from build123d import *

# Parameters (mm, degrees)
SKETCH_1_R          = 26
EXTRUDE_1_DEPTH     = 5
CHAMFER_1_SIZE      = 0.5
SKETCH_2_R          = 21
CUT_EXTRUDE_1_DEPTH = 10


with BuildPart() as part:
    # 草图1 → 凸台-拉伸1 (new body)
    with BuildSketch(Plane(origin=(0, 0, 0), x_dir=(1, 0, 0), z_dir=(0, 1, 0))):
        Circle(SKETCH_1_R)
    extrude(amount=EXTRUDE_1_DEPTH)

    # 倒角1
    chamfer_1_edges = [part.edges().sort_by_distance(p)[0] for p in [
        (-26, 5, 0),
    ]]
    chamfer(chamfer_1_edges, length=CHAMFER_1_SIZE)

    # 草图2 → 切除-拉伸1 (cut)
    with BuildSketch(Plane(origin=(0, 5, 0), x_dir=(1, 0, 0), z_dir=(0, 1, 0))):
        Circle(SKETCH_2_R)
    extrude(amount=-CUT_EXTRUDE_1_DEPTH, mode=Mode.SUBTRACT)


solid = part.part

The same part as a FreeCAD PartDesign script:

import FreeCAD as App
import Part
import Sketcher

V = App.Vector
Q = App.Units.Quantity


def edges_at(feature, points):
    """Names of the edges that pass closest to the given points."""
    edges = feature.Shape.Edges
    near = lambda p: min(range(len(edges)), key=lambda i: edges[i].distToShape(Part.Vertex(*p))[0])
    return sorted({f"Edge{near(p) + 1}" for p in points})

doc = App.newDocument("Part")
body = doc.addObject("PartDesign::Body", "Body")

sketch1 = body.newObject("Sketcher::SketchObject", "Sketch")
sketch1.AttachmentSupport = (doc.getObject("XZ_Plane"), [""])
sketch1.MapMode = "FlatFace"
sketch1.addGeometry(Part.Circle(V(0, 0, 0), V(0, 0, 1), 26), False)
sketch1.addConstraint([
    Sketcher.Constraint("Coincident", 0, 3, -1, 1),
    Sketcher.Constraint("Diameter", 0, Q("52 mm")),
])
pad1 = body.newObject("PartDesign::Pad", "Pad")
pad1.Profile = sketch1
pad1.Length = 5
pad1.Reversed = True
doc.recompute()

chamfer = body.newObject("PartDesign::Chamfer", "Chamfer")
chamfer.Base = (pad1, edges_at(pad1, [(-26, 5, 0)]))
chamfer.Size = 0.5

sketch2 = body.newObject("Sketcher::SketchObject", "Sketch001")
sketch2.AttachmentSupport = (doc.getObject("XZ_Plane"), [""])
sketch2.MapMode = "FlatFace"
sketch2.AttachmentOffset = App.Placement(V(0, 0, -5), App.Rotation())
sketch2.addGeometry(Part.Circle(V(0, 0, 0), V(0, 0, 1), 21), False)
sketch2.addConstraint([
    Sketcher.Constraint("Coincident", 0, 3, -1, 1),
    Sketcher.Constraint("Diameter", 0, Q("42 mm")),
])
pocket1 = body.newObject("PartDesign::Pocket", "Pocket")
pocket1.Profile = sketch2
pocket1.Length = 10
pocket1.Reversed = True

doc.recompute()
